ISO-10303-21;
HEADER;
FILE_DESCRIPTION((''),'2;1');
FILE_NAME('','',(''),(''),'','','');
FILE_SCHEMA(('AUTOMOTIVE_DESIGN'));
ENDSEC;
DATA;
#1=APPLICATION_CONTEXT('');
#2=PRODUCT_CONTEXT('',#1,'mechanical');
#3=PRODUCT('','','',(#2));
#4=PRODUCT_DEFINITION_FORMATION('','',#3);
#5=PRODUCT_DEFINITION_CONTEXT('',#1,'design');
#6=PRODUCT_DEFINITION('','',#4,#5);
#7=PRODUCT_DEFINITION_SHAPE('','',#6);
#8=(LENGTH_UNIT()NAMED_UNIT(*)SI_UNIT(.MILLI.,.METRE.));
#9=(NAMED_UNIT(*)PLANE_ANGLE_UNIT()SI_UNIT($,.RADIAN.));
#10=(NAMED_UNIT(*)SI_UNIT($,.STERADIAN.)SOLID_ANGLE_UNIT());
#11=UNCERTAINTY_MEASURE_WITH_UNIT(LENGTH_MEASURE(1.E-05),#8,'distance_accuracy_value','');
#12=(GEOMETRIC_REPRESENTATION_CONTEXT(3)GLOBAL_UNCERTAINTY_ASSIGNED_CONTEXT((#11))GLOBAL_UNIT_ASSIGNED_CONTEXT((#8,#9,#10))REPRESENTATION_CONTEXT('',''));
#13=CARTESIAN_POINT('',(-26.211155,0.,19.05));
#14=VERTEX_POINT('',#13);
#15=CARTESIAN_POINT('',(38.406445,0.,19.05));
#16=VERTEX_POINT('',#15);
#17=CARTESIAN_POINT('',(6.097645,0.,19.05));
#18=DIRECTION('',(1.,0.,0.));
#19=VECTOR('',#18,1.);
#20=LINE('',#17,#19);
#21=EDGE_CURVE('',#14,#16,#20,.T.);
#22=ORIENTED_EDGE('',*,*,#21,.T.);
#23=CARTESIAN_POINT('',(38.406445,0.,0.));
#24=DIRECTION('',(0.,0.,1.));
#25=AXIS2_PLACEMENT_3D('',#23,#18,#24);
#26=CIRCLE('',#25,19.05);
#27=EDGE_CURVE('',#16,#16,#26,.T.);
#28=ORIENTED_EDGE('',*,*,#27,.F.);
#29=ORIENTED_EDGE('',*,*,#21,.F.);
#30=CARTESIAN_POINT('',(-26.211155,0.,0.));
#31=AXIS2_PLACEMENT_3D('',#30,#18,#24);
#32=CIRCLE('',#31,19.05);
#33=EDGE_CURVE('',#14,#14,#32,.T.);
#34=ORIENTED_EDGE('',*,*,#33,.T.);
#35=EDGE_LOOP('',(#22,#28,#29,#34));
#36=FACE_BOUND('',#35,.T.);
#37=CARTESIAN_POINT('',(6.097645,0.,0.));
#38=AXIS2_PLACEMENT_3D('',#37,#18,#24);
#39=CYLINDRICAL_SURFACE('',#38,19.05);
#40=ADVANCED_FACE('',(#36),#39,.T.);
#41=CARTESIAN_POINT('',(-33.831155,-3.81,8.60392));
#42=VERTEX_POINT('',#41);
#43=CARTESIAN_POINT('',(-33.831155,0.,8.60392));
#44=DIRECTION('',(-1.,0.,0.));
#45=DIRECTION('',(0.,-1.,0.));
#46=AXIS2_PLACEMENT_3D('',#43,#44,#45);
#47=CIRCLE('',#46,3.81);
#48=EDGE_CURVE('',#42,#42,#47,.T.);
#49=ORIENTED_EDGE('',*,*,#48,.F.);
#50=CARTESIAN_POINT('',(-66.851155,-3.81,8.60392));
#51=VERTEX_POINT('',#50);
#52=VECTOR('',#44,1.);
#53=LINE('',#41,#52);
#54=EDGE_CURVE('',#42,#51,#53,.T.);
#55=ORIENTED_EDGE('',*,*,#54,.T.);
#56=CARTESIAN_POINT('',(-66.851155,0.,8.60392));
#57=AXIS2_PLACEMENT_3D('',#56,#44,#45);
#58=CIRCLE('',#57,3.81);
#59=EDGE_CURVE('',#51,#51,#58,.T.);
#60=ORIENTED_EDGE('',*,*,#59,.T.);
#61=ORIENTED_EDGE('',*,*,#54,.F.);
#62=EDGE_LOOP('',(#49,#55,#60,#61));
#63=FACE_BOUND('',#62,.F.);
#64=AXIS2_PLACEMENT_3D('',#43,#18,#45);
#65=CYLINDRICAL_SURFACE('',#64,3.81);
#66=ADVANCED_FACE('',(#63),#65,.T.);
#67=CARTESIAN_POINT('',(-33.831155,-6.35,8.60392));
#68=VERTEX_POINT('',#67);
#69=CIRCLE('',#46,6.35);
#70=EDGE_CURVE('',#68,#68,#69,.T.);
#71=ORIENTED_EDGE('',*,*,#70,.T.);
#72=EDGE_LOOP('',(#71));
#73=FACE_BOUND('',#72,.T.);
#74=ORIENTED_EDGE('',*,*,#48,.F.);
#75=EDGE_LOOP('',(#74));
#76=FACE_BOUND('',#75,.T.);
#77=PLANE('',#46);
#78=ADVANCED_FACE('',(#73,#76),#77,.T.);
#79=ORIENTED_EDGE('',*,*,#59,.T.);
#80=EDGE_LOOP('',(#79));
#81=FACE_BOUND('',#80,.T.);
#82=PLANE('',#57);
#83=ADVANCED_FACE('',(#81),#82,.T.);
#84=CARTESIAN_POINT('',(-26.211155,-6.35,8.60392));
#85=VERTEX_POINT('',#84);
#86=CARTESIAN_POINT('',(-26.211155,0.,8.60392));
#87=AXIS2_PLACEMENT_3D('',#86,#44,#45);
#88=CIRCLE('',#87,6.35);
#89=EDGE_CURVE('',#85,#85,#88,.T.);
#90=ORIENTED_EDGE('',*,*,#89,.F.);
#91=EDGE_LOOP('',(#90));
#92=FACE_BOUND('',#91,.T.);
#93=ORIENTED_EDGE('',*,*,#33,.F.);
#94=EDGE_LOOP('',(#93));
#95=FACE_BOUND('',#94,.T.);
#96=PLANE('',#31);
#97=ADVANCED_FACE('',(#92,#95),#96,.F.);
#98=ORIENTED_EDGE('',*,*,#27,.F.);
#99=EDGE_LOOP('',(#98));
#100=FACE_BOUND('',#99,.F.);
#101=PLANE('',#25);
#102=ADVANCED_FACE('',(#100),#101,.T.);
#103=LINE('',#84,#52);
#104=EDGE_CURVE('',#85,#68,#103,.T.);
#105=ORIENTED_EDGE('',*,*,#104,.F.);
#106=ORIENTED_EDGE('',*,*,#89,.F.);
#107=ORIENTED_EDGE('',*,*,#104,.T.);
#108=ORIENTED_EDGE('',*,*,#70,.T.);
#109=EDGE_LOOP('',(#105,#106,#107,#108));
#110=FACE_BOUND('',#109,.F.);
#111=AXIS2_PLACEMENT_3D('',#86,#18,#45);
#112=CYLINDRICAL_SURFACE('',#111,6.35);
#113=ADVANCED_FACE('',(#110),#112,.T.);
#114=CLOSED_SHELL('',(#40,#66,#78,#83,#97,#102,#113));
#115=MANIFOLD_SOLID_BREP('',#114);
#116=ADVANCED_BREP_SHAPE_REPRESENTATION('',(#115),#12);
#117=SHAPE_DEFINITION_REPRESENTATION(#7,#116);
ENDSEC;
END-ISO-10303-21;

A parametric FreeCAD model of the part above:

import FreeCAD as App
import Part
import Sketcher
Q = App.Units.Quantity

doc = App.newDocument("Part")
body = doc.addObject("PartDesign::Body", "Body")

# Sketch on XZ plane
sketch1 = body.newObject("Sketcher::SketchObject", "Sketch")
sketch1.AttachmentSupport = (doc.getObject("XZ_Plane"), [""])
sketch1.MapMode = "FlatFace"
sketch1.addGeometry([
    Part.LineSegment(App.Vector(-26, 19, 0), App.Vector(-26, 0, 0)),
    Part.LineSegment(App.Vector(-26, 0, 0), App.Vector(38, 0, 0)),
    Part.LineSegment(App.Vector(38, 0, 0), App.Vector(38, 19, 0)),
    Part.LineSegment(App.Vector(38, 19, 0), App.Vector(-26, 19, 0)),
], False)
sketch1.addConstraint([
    Sketcher.Constraint("Coincident", 0, 2, 1, 1),
    Sketcher.Constraint("Coincident", 1, 2, 2, 1),
    Sketcher.Constraint("Coincident", 2, 2, 3, 1),
    Sketcher.Constraint("Coincident", 3, 2, 0, 1),
    Sketcher.Constraint("Vertical", 0),
    Sketcher.Constraint("Horizontal", 1),
    Sketcher.Constraint("Vertical", 2),
    Sketcher.Constraint("Horizontal", 3),
    Sketcher.Constraint("PointOnObject", 0, 2, -1),
    Sketcher.Constraint("DistanceY", 0, 2, 0, 1, Q("0.75 in")),
    Sketcher.Constraint("DistanceX", 1, 1, 1, 2, Q("2.544 in")),
    Sketcher.Constraint("DistanceX", 0, 2, -1, 1, Q("26.211155 mm")),
])
revolution = body.newObject("PartDesign::Revolution", "Revolution")
revolution.Profile = sketch1
revolution.ReferenceAxis = (sketch1, ["H_Axis"])
revolution.Angle = 360

# Sketch on YZ plane
sketch2 = body.newObject("Sketcher::SketchObject", "Sketch001")
sketch2.AttachmentSupport = (doc.getObject("YZ_Plane"), [""])
sketch2.MapMode = "FlatFace"
sketch2.AttachmentOffset = App.Placement(App.Vector(0, 0, -26.211155), App.Rotation())
sketch2.addGeometry(Part.Circle(App.Vector(0, 9, 0), App.Vector(0, 0, 1), 6), False)
sketch2.addConstraint([
    Sketcher.Constraint("PointOnObject", 0, 3, -2),
    Sketcher.Constraint("Diameter", 0, Q("0.5 in")),
    Sketcher.Constraint("DistanceY", -1, 1, 0, 3, Q("8.60392 mm")),
])
pad1 = body.newObject("PartDesign::Pad", "Pad")
pad1.Profile = sketch2
pad1.Length = Q("0.3 in")
pad1.Reversed = True

# Sketch on YZ plane
sketch3 = body.newObject("Sketcher::SketchObject", "Sketch002")
sketch3.AttachmentSupport = (doc.getObject("YZ_Plane"), [""])
sketch3.MapMode = "FlatFace"
sketch3.AttachmentOffset = App.Placement(App.Vector(0, 0, -33.831155), App.Rotation())
sketch3.addGeometry(Part.Circle(App.Vector(0, 8.6, 0), App.Vector(0, 0, 1), 3.8), False)
sketch3.addConstraint([
    Sketcher.Constraint("PointOnObject", 0, 3, -2),
    Sketcher.Constraint("Diameter", 0, Q("0.3 in")),
    Sketcher.Constraint("DistanceY", -1, 1, 0, 3, Q("8.60392 mm")),
])
pad2 = body.newObject("PartDesign::Pad", "Pad001")
pad2.Profile = sketch3
pad2.Length = Q("1.3 in")
pad2.Reversed = True

doc.recompute()
